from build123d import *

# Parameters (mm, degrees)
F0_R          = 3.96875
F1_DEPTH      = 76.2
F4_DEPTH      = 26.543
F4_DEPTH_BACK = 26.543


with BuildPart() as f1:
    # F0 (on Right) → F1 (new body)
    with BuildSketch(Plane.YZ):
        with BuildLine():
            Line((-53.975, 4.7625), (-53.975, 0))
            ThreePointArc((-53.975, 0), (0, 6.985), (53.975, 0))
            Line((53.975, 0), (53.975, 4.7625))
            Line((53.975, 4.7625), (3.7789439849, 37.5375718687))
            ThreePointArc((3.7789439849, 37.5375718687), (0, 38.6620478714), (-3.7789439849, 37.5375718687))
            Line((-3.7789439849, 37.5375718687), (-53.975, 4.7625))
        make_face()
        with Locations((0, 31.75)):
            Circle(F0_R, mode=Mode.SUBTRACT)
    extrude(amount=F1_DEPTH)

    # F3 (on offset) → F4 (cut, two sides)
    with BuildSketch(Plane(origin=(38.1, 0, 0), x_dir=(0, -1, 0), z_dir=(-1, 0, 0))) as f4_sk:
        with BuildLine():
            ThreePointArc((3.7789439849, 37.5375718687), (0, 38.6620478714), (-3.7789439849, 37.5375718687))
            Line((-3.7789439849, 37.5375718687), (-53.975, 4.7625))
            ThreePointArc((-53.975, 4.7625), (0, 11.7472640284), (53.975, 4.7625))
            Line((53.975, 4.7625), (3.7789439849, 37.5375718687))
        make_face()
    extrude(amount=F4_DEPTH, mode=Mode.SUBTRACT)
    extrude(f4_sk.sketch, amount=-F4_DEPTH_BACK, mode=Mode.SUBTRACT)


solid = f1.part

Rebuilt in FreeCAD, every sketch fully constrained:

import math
import FreeCAD as App
import Part
import Sketcher

V = App.Vector
Q = App.Units.Quantity

doc = App.newDocument("Part")
body = doc.addObject("PartDesign::Body", "Body")

# Sketch on YZ plane
sketch1 = body.newObject("Sketcher::SketchObject", "Sketch")
sketch1.AttachmentSupport = (doc.getObject("YZ_Plane"), [""])
sketch1.MapMode = "FlatFace"
sketch1.addGeometry([
    Part.LineSegment(V(-54, 4.8, 0), V(-54, 0, 0)),  # 0
    Part.ArcOfCircle(Part.Circle(V(0, -205, 0), V(0, 0, 1), 212), math.radians(75), math.radians(105)),  # 1
    Part.LineSegment(V(54, 0, 0), V(54, 4.8, 0)),  # 2
    Part.LineSegment(V(54, 4.8, 0), V(3.8, 37.5, 0)),  # 3
    Part.ArcOfCircle(Part.Circle(V(0, 31.8, 0), V(0, 0, 1), 6.9), math.radians(57), math.radians(123)),  # 4
    Part.LineSegment(V(-3.8, 37.5, 0), V(-54, 4.8, 0)),  # 5
    Part.Circle(V(0, 31.8, 0), V(0, 0, 1), 4),  # 6
], False)
sketch1.addConstraint([
    Sketcher.Constraint("Coincident", 0, 2, 1, 2),
    Sketcher.Constraint("Coincident", 1, 1, 2, 1),
    Sketcher.Constraint("Coincident", 2, 2, 3, 1),
    Sketcher.Constraint("Tangent", 3, 2, 4, 1),
    Sketcher.Constraint("Tangent", 4, 2, 5, 1),
    Sketcher.Constraint("Coincident", 5, 2, 0, 1),
    Sketcher.Constraint("Vertical", 0),
    Sketcher.Constraint("Vertical", 2),
    Sketcher.Constraint("Coincident", 6, 3, 4, 3),
    Sketcher.Constraint("Symmetric", 0, 2, 1, 1, -1, 1),
    Sketcher.Constraint("Symmetric", 3, 2, 4, 2, -2),
    Sketcher.Constraint("PointOnObject", 1, 3, -2),
    Sketcher.Constraint("Diameter", 6, Q("0.3125 in")),
    Sketcher.Constraint("DistanceY", 0, 2, 0, 1, Q("0.1875 in")),
    Sketcher.Constraint("DistanceY", -1, 1, 4, 3, Q("1.25 in")),
    Sketcher.Constraint("DistanceX", 0, 2, 1, 1, Q("4.25 in")),
    Sketcher.Constraint("Radius", 1, Q("212.032273 mm")),
    Sketcher.Constraint("Radius", 4, Q("6.912048 mm")),
])
pad1 = body.newObject("PartDesign::Pad", "Pad")
pad1.Profile = sketch1
pad1.Length = Q("3 in")

# Sketch on YZ plane
sketch2 = body.newObject("Sketcher::SketchObject", "Sketch001")
sketch2.AttachmentSupport = (doc.getObject("YZ_Plane"), [""])
sketch2.MapMode = "FlatFace"
sketch2.AttachmentOffset = App.Placement(V(0, 0, 1.5 * 25.4), App.Rotation())
sketch2.addGeometry([
    Part.ArcOfCircle(Part.Circle(V(0, 32, 0), V(0, 0, 1), 7), math.radians(57), math.radians(123)),
    Part.LineSegment(V(4, 38, 0), V(54, 5, 0)),
    Part.ArcOfCircle(Part.Circle(V(0, -200, 0), V(0, 0, 1), 212), math.radians(75), math.radians(105)),
    Part.LineSegment(V(-54, 5, 0), V(-4, 38, 0)),
], False)
sketch2.addConstraint([
    Sketcher.Constraint("Tangent", 0, 1, 1, 1),
    Sketcher.Constraint("Coincident", 1, 2, 2, 1),
    Sketcher.Constraint("Coincident", 2, 2, 3, 1),
    Sketcher.Constraint("Tangent", 3, 2, 0, 2),
    Sketcher.Constraint("Symmetric", 1, 2, 2, 2, -2),
    Sketcher.Constraint("PointOnObject", 0, 3, -2),
    Sketcher.Constraint("Radius", 2, Q("8.348 in")),
    Sketcher.Constraint("DistanceY", -1, 1, 0, 3, Q("1.25 in")),
    Sketcher.Constraint("DistanceX", 2, 2, 1, 2, Q("4.25 in")),
    Sketcher.Constraint("DistanceY", -1, 1, 1, 2, Q("0.1875 in")),
    Sketcher.Constraint("Radius", 0, Q("6.912048 mm")),
])
pocket1 = body.newObject("PartDesign::Pocket", "Pocket")
pocket1.Profile = sketch2
pocket1.Type = "TwoLengths"
pocket1.Length = Q("1.045 in")
pocket1.Length2 = Q("1.045 in")

doc.recompute()
